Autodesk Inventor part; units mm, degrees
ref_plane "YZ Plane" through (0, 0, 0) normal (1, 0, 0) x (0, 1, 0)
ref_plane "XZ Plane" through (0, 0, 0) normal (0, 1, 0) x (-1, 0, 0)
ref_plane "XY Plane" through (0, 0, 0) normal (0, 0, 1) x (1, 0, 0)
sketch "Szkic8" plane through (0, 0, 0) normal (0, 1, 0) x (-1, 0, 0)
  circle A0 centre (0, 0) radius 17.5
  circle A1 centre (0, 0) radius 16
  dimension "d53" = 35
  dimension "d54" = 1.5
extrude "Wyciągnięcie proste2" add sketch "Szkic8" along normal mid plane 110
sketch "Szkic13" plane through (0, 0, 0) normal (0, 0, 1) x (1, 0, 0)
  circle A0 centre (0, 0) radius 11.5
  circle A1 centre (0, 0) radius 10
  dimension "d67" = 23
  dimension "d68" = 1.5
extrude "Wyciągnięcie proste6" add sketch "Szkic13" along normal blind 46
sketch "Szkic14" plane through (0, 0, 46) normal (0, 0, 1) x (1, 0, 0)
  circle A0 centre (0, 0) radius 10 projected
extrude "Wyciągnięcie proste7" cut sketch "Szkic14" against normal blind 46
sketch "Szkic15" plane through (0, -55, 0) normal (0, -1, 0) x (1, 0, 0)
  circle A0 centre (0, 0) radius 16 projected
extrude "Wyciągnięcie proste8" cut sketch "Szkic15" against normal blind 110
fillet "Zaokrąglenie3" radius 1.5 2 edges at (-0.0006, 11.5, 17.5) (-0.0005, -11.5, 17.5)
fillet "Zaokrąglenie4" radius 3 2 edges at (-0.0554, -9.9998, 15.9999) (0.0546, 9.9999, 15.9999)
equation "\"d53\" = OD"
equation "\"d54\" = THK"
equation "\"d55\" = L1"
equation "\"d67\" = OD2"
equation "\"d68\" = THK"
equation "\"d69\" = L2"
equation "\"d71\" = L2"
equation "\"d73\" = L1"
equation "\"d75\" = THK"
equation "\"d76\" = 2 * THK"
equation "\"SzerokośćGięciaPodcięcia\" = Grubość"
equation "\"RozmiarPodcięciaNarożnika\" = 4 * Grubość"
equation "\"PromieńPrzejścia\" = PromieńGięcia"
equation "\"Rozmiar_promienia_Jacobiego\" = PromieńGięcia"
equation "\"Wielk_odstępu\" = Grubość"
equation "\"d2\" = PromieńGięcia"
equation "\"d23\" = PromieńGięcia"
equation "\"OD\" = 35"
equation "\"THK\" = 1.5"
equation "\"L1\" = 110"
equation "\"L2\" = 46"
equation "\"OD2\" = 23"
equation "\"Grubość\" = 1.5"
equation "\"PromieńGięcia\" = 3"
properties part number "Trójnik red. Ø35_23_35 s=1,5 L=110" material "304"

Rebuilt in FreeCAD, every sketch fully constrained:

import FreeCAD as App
import Part
import Sketcher
Q = App.Units.Quantity


def edges_at(feature, points):
    """Names of the edges that pass closest to the given points."""
    edges = feature.Shape.Edges
    near = lambda p: min(range(len(edges)), key=lambda i: edges[i].distToShape(Part.Vertex(*p))[0])
    return sorted({f"Edge{near(p) + 1}" for p in points})

doc = App.newDocument("Part")
body = doc.addObject("PartDesign::Body", "Body")

# Sketch on XZ plane
sketch1 = body.newObject("Sketcher::SketchObject", "Sketch")
sketch1.AttachmentSupport = (doc.getObject("XZ_Plane"), [""])
sketch1.MapMode = "FlatFace"
sketch1.addGeometry([
    Part.Circle(App.Vector(0, 0, 0), App.Vector(0, 0, 1), 18),
    Part.Circle(App.Vector(0, 0, 0), App.Vector(0, 0, 1), 16),
], False)
sketch1.addConstraint([
    Sketcher.Constraint("Coincident", 0, 3, -1, 1),
    Sketcher.Constraint("Coincident", 1, 3, -1, 1),
    Sketcher.Constraint("Diameter", 0, Q("35 mm")),
    Sketcher.Constraint("Diameter", 1, Q("32 mm")),
])
pad1 = body.newObject("PartDesign::Pad", "Pad")
pad1.Profile = sketch1
pad1.Length = 110
pad1.Midplane = True

# Sketch on XY plane
sketch2 = body.newObject("Sketcher::SketchObject", "Sketch001")
sketch2.AttachmentSupport = (doc.getObject("XY_Plane"), [""])
sketch2.MapMode = "FlatFace"
sketch2.addGeometry([
    Part.Circle(App.Vector(0, 0, 0), App.Vector(0, 0, 1), 12),
    Part.Circle(App.Vector(0, 0, 0), App.Vector(0, 0, 1), 10),
], False)
sketch2.addConstraint([
    Sketcher.Constraint("Coincident", 0, 3, -1, 1),
    Sketcher.Constraint("Coincident", 1, 3, -1, 1),
    Sketcher.Constraint("Diameter", 0, Q("23 mm")),
    Sketcher.Constraint("Diameter", 1, Q("20 mm")),
])
pad2 = body.newObject("PartDesign::Pad", "Pad001")
pad2.Profile = sketch2
pad2.Length = 46

# Sketch on XY plane
sketch3 = body.newObject("Sketcher::SketchObject", "Sketch002")
sketch3.AttachmentSupport = (doc.getObject("XY_Plane"), [""])
sketch3.MapMode = "FlatFace"
sketch3.AttachmentOffset = App.Placement(App.Vector(0, 0, 46), App.Rotation())
sketch3.addGeometry(Part.Circle(App.Vector(0, 0, 0), App.Vector(0, 0, 1), 10), False)
sketch3.addConstraint([
    Sketcher.Constraint("Coincident", 0, 3, -1, 1),
    Sketcher.Constraint("Diameter", 0, Q("20 mm")),
])
pocket1 = body.newObject("PartDesign::Pocket", "Pocket")
pocket1.Profile = sketch3
pocket1.Length = 46

# Sketch on XZ plane
sketch4 = body.newObject("Sketcher::SketchObject", "Sketch003")
sketch4.AttachmentSupport = (doc.getObject("XZ_Plane"), [""])
sketch4.MapMode = "FlatFace"
sketch4.AttachmentOffset = App.Placement(App.Vector(0, 0, 55), App.Rotation())
sketch4.addGeometry(Part.Circle(App.Vector(0, 0, 0), App.Vector(0, 0, 1), 16), False)
sketch4.addConstraint([
    Sketcher.Constraint("Coincident", 0, 3, -1, 1),
    Sketcher.Constraint("Diameter", 0, Q("32 mm")),
])
pocket2 = body.newObject("PartDesign::Pocket", "Pocket001")
pocket2.Profile = sketch4
pocket2.Length = 110
doc.recompute()

fillet = body.newObject("PartDesign::Fillet", "Fillet")
fillet.Base = (pocket2, edges_at(pocket2, [(-0.001, 11.5, 17.5), (-0.001, -11.5, 17.5)]))
fillet.Radius = 1.5
doc.recompute()

fillet2 = body.newObject("PartDesign::Fillet", "Fillet001")
fillet2.Base = (fillet, edges_at(fillet, [(-0.055, -10, 16), (0.055, 10, 16)]))
fillet2.Radius = 3

doc.recompute()
